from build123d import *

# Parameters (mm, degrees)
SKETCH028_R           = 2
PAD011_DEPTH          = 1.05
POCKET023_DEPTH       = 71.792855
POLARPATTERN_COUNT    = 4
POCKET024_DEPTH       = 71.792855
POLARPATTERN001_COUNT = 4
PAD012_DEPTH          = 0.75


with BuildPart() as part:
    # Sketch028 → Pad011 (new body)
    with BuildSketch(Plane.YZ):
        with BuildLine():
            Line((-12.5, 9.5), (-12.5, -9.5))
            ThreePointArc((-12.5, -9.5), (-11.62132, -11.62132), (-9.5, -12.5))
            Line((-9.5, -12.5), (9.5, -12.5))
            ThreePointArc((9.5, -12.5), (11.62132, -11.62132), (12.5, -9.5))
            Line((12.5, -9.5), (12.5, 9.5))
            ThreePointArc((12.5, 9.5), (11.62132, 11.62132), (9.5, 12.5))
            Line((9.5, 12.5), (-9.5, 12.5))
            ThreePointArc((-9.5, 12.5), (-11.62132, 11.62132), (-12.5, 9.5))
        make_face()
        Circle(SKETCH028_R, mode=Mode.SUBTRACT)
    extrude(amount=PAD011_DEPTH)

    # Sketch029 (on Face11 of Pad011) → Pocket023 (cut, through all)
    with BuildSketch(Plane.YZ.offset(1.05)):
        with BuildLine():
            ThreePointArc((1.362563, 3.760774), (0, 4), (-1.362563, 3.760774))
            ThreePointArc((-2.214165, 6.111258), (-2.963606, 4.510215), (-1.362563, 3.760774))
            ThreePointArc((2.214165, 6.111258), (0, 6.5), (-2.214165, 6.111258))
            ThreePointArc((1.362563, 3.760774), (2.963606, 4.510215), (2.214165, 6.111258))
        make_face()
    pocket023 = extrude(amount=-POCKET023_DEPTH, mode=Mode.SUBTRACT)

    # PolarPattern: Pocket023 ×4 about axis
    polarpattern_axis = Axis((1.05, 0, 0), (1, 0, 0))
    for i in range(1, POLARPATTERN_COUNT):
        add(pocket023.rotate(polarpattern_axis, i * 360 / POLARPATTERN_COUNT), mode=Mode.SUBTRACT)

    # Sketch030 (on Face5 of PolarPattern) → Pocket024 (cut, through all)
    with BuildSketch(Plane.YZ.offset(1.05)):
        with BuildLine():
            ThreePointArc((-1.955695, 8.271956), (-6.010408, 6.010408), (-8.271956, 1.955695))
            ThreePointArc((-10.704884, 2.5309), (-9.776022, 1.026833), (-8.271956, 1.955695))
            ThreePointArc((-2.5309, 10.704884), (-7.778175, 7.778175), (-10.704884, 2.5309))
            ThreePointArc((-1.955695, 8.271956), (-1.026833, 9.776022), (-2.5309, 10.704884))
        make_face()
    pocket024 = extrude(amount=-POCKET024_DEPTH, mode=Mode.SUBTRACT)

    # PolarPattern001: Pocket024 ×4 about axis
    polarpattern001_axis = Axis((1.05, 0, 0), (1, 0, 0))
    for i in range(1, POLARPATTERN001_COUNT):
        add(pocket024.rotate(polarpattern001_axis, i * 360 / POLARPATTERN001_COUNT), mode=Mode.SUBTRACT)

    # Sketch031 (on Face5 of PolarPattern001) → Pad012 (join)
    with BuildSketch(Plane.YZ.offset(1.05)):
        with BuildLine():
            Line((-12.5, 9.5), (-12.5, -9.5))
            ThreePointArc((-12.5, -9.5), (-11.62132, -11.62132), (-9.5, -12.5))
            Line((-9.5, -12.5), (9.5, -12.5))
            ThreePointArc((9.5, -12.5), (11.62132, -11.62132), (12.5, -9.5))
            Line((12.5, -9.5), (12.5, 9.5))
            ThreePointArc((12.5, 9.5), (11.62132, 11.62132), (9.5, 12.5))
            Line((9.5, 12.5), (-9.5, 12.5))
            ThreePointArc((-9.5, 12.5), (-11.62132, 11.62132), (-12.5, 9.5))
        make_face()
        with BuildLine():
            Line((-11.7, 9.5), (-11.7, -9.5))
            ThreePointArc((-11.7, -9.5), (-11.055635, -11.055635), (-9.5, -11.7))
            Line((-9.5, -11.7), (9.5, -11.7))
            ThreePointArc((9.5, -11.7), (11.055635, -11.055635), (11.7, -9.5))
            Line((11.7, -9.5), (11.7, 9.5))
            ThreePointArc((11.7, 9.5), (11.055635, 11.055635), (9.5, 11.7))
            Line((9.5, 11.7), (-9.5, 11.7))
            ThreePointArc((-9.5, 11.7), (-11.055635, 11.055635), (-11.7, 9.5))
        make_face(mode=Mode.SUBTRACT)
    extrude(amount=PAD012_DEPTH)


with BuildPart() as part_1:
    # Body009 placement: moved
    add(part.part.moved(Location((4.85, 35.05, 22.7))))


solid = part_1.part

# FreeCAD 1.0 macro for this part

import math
import FreeCAD as App
import Part
import Sketcher

doc = App.newDocument("Part")
body = doc.addObject("PartDesign::Body", "Body")

# Sketch on YZ plane
sketch1 = body.newObject("Sketcher::SketchObject", "Sketch")
sketch1.AttachmentSupport = (doc.getObject("YZ_Plane"), [""])
sketch1.MapMode = "FlatFace"
sketch1.addGeometry(Part.LineSegment(App.Vector(-12.5, 9.5, 0), App.Vector(-12.5, -9.5, 0)), False)
sketch1.addGeometry(Part.ArcOfCircle(Part.Circle(App.Vector(-9.5, -9.5, 0), App.Vector(0, 0, 1), 3), math.radians(-180), math.radians(-90)), False)
sketch1.addGeometry(Part.LineSegment(App.Vector(-9.5, -12.5, 0), App.Vector(9.5, -12.5, 0)), False)
sketch1.addGeometry(Part.ArcOfCircle(Part.Circle(App.Vector(9.5, -9.5, 0), App.Vector(0, 0, 1), 3), math.radians(-90), math.radians(0)), False)
sketch1.addGeometry(Part.LineSegment(App.Vector(12.5, -9.5, 0), App.Vector(12.5, 9.5, 0)), False)
sketch1.addGeometry(Part.ArcOfCircle(Part.Circle(App.Vector(9.5, 9.5, 0), App.Vector(0, 0, 1), 3), math.radians(0), math.radians(90)), False)
sketch1.addGeometry(Part.LineSegment(App.Vector(9.5, 12.5, 0), App.Vector(-9.5, 12.5, 0)), False)
sketch1.addGeometry(Part.ArcOfCircle(Part.Circle(App.Vector(-9.5, 9.5, 0), App.Vector(0, 0, 1), 3), math.radians(90), math.radians(180)), False)
sketch1.addGeometry(Part.Circle(App.Vector(0, 0, 0), App.Vector(0, 0, 1), 2), False)
sketch1.addConstraint(Sketcher.Constraint("Tangent", 0, 2, 1, 1))
sketch1.addConstraint(Sketcher.Constraint("Tangent", 1, 2, 2, 1))
sketch1.addConstraint(Sketcher.Constraint("Tangent", 2, 2, 3, 1))
sketch1.addConstraint(Sketcher.Constraint("Tangent", 3, 2, 4, 1))
sketch1.addConstraint(Sketcher.Constraint("Tangent", 4, 2, 5, 1))
sketch1.addConstraint(Sketcher.Constraint("Tangent", 5, 2, 6, 1))
sketch1.addConstraint(Sketcher.Constraint("Tangent", 6, 2, 7, 1))
sketch1.addConstraint(Sketcher.Constraint("Tangent", 7, 2, 0, 1))
sketch1.addConstraint(Sketcher.Constraint("Vertical", 0))
sketch1.addConstraint(Sketcher.Constraint("Horizontal", 2))
sketch1.addConstraint(Sketcher.Constraint("Vertical", 4))
sketch1.addConstraint(Sketcher.Constraint("Horizontal", 6))
sketch1.addConstraint(Sketcher.Constraint("Coincident", 8, 3, -1, 1))
sketch1.addConstraint(Sketcher.Constraint("Equal", 1, 3))
sketch1.addConstraint(Sketcher.Constraint("Equal", 3, 5))
sketch1.addConstraint(Sketcher.Constraint("Equal", 5, 7))
sketch1.addConstraint(Sketcher.Constraint("Symmetric", 1, 3, 5, 3, -1, 1))
sketch1.addConstraint(Sketcher.Constraint("Equal", 6, 0))
sketch1.addConstraint(Sketcher.Constraint("Diameter", 8, 4.0))
sketch1.addConstraint(Sketcher.Constraint("Radius", 1, 3.000001))
sketch1.addConstraint(Sketcher.Constraint("DistanceX", 2, 1, 2, 2, 19.0))
pad1 = body.newObject("PartDesign::Pad", "Pad")
pad1.Profile = sketch1
pad1.Length = 1.05

# Sketch on YZ plane
sketch2 = body.newObject("Sketcher::SketchObject", "Sketch001")
sketch2.AttachmentSupport = (doc.getObject("YZ_Plane"), [""])
sketch2.MapMode = "FlatFace"
sketch2.AttachmentOffset = App.Placement(App.Vector(0, 0, 1.05), App.Rotation())
sketch2.addGeometry(Part.ArcOfCircle(Part.Circle(App.Vector(0, 0, 0), App.Vector(0, 0, 1), 4), math.radians(70), math.radians(110)), False)
sketch2.addGeometry(Part.ArcOfCircle(Part.Circle(App.Vector(1.8, 4.9, 0), App.Vector(0, 0, 1), 1.3), math.radians(-110), math.radians(70)), False)
sketch2.addGeometry(Part.ArcOfCircle(Part.Circle(App.Vector(0, 0, 0), App.Vector(0, 0, 1), 6.5), math.radians(70), math.radians(110)), False)
sketch2.addGeometry(Part.ArcOfCircle(Part.Circle(App.Vector(-1.8, 4.9, 0), App.Vector(0, 0, 1), 1.3), math.radians(110), math.radians(290)), False)
sketch2.addConstraint(Sketcher.Constraint("Tangent", 0, 1, 1, 1))
sketch2.addConstraint(Sketcher.Constraint("Tangent", 1, 2, 2, 1))
sketch2.addConstraint(Sketcher.Constraint("Tangent", 2, 2, 3, 1))
sketch2.addConstraint(Sketcher.Constraint("Tangent", 3, 2, 0, 2))
sketch2.addConstraint(Sketcher.Constraint("Coincident", 0, 3, -1, 1))
sketch2.addConstraint(Sketcher.Constraint("Coincident", 2, 3, -1, 1))
sketch2.addConstraint(Sketcher.Constraint("Horizontal", 1, 3, 3, 3))
sketch2.addConstraint(Sketcher.Constraint("Radius", 2, 6.500001))
sketch2.addConstraint(Sketcher.Constraint("Radius", 1, 1.25))
sketch2.addConstraint(Sketcher.Constraint("DistanceX", 0, 1, 1, 3, 0.425801))
pocket1 = body.newObject("PartDesign::Pocket", "Pocket")
pocket1.Profile = sketch2
pocket1.Type = "ThroughAll"
doc.recompute()

polarpattern = body.newObject("PartDesign::PolarPattern", "PolarPattern")
polarpattern.Originals = [pocket1]
polarpattern.Axis = (doc.getObject("X_Axis"), [""])
polarpattern.Angle = 360
polarpattern.Occurrences = 4
body.Tip = polarpattern

# Sketch on YZ plane
sketch3 = body.newObject("Sketcher::SketchObject", "Sketch002")
sketch3.AttachmentSupport = (doc.getObject("YZ_Plane"), [""])
sketch3.MapMode = "FlatFace"
sketch3.AttachmentOffset = App.Placement(App.Vector(0, 0, 1.05), App.Rotation())
sketch3.addGeometry(Part.ArcOfCircle(Part.Circle(App.Vector(0, 0, 0), App.Vector(0, 0, 1), 8.5), math.radians(103), math.radians(167)), False)
sketch3.addGeometry(Part.ArcOfCircle(Part.Circle(App.Vector(-2.2, 9.5, 0), App.Vector(0, 0, 1), 1.2), math.radians(-77), math.radians(103)), False)
sketch3.addGeometry(Part.ArcOfCircle(Part.Circle(App.Vector(0, 0, 0), App.Vector(0, 0, 1), 11), math.radians(103), math.radians(167)), False)
sketch3.addGeometry(Part.ArcOfCircle(Part.Circle(App.Vector(-9.5, 2.2, 0), App.Vector(0, 0, 1), 1.2), math.radians(167), math.radians(347)), False)
sketch3.addConstraint(Sketcher.Constraint("Tangent", 0, 1, 1, 1))
sketch3.addConstraint(Sketcher.Constraint("Tangent", 1, 2, 2, 1))
sketch3.addConstraint(Sketcher.Constraint("Tangent", 2, 2, 3, 1))
sketch3.addConstraint(Sketcher.Constraint("Tangent", 3, 2, 0, 2))
sketch3.addConstraint(Sketcher.Constraint("Coincident", 0, 3, -1, 1))
sketch3.addConstraint(Sketcher.Constraint("Coincident", 2, 3, -1, 1))
sketch3.addConstraint(Sketcher.Constraint("Radius", 1, 1.25))
sketch3.addConstraint(Sketcher.Constraint("Radius", 0, 8.499997))
sketch3.addConstraint(Sketcher.Constraint("DistanceX", 1, 2, -1, 1, 2.5309))
sketch3.addConstraint(Sketcher.Constraint("DistanceY", -1, 1, 2, 2, 2.5309))
pocket2 = body.newObject("PartDesign::Pocket", "Pocket001")
pocket2.Profile = sketch3
pocket2.Type = "ThroughAll"
doc.recompute()

polarpattern2 = body.newObject("PartDesign::PolarPattern", "PolarPattern001")
polarpattern2.Originals = [pocket2]
polarpattern2.Axis = (doc.getObject("X_Axis"), [""])
polarpattern2.Angle = 360
polarpattern2.Occurrences = 4
body.Tip = polarpattern2

# Sketch on YZ plane
sketch4 = body.newObject("Sketcher::SketchObject", "Sketch003")
sketch4.AttachmentSupport = (doc.getObject("YZ_Plane"), [""])
sketch4.MapMode = "FlatFace"
sketch4.AttachmentOffset = App.Placement(App.Vector(0, 0, 1.05), App.Rotation())
sketch4.addGeometry(Part.LineSegment(App.Vector(-12.5, 9.5, 0), App.Vector(-12.5, -9.5, 0)), False)
sketch4.addGeometry(Part.ArcOfCircle(Part.Circle(App.Vector(-9.5, -9.5, 0), App.Vector(0, 0, 1), 3), math.radians(-180), math.radians(-90)), False)
sketch4.addGeometry(Part.LineSegment(App.Vector(-9.5, -12.5, 0), App.Vector(9.5, -12.5, 0)), False)
sketch4.addGeometry(Part.ArcOfCircle(Part.Circle(App.Vector(9.5, -9.5, 0), App.Vector(0, 0, 1), 3), math.radians(-90), math.radians(0)), False)
sketch4.addGeometry(Part.LineSegment(App.Vector(12.5, -9.5, 0), App.Vector(12.5, 9.5, 0)), False)
sketch4.addGeometry(Part.ArcOfCircle(Part.Circle(App.Vector(9.5, 9.5, 0), App.Vector(0, 0, 1), 3), math.radians(0), math.radians(90)), False)
sketch4.addGeometry(Part.LineSegment(App.Vector(9.5, 12.5, 0), App.Vector(-9.5, 12.5, 0)), False)
sketch4.addGeometry(Part.ArcOfCircle(Part.Circle(App.Vector(-9.5, 9.5, 0), App.Vector(0, 0, 1), 3), math.radians(90), math.radians(180)), False)
sketch4.addGeometry(Part.LineSegment(App.Vector(-11.7, -9.5, 0), App.Vector(-11.7, 9.5, 0)), False)
sketch4.addGeometry(Part.ArcOfCircle(Part.Circle(App.Vector(-9.5, 9.5, 0), App.Vector(0, 0, 1), 2.2), math.radians(90), math.radians(180)), False)
sketch4.addGeometry(Part.LineSegment(App.Vector(-9.5, 11.7, 0), App.Vector(9.5, 11.7, 0)), False)
sketch4.addGeometry(Part.ArcOfCircle(Part.Circle(App.Vector(9.5, 9.5, 0), App.Vector(0, 0, 1), 2.2), math.radians(0), math.radians(90)), False)
sketch4.addGeometry(Part.LineSegment(App.Vector(11.7, 9.5, 0), App.Vector(11.7, -9.5, 0)), False)
sketch4.addGeometry(Part.ArcOfCircle(Part.Circle(App.Vector(9.5, -9.5, 0), App.Vector(0, 0, 1), 2.2), math.radians(-90), math.radians(0)), False)
sketch4.addGeometry(Part.LineSegment(App.Vector(9.5, -11.7, 0), App.Vector(-9.5, -11.7, 0)), False)
sketch4.addGeometry(Part.ArcOfCircle(Part.Circle(App.Vector(-9.5, -9.5, 0), App.Vector(0, 0, 1), 2.2), math.radians(180), math.radians(270)), False)
sketch4.addConstraint(Sketcher.Constraint("Tangent", 0, 2, 1, 1))
sketch4.addConstraint(Sketcher.Constraint("Tangent", 1, 2, 2, 1))
sketch4.addConstraint(Sketcher.Constraint("Tangent", 2, 2, 3, 1))
sketch4.addConstraint(Sketcher.Constraint("Tangent", 3, 2, 4, 1))
sketch4.addConstraint(Sketcher.Constraint("Tangent", 4, 2, 5, 1))
sketch4.addConstraint(Sketcher.Constraint("Tangent", 5, 2, 6, 1))
sketch4.addConstraint(Sketcher.Constraint("Tangent", 6, 2, 7, 1))
sketch4.addConstraint(Sketcher.Constraint("Tangent", 7, 2, 0, 1))
sketch4.addConstraint(Sketcher.Constraint("Tangent", 8, 2, 9, 2))
sketch4.addConstraint(Sketcher.Constraint("Tangent", 9, 1, 10, 1))
sketch4.addConstraint(Sketcher.Constraint("Tangent", 10, 2, 11, 2))
sketch4.addConstraint(Sketcher.Constraint("Tangent", 11, 1, 12, 1))
sketch4.addConstraint(Sketcher.Constraint("Tangent", 12, 2, 13, 2))
sketch4.addConstraint(Sketcher.Constraint("Tangent", 13, 1, 14, 1))
sketch4.addConstraint(Sketcher.Constraint("Tangent", 14, 2, 15, 2))
sketch4.addConstraint(Sketcher.Constraint("Tangent", 15, 1, 8, 1))
sketch4.addConstraint(Sketcher.Constraint("Vertical", 0))
sketch4.addConstraint(Sketcher.Constraint("Horizontal", 2))
sketch4.addConstraint(Sketcher.Constraint("Vertical", 4))
sketch4.addConstraint(Sketcher.Constraint("Horizontal", 6))
sketch4.addConstraint(Sketcher.Constraint("Vertical", 8))
sketch4.addConstraint(Sketcher.Constraint("Horizontal", 10))
sketch4.addConstraint(Sketcher.Constraint("Vertical", 12))
sketch4.addConstraint(Sketcher.Constraint("Horizontal", 14))
sketch4.addConstraint(Sketcher.Constraint("Coincident", 9, 3, 7, 3))
sketch4.addConstraint(Sketcher.Constraint("Coincident", 11, 3, 5, 3))
sketch4.addConstraint(Sketcher.Constraint("Coincident", 13, 3, 3, 3))
sketch4.addConstraint(Sketcher.Constraint("Equal", 1, 3))
sketch4.addConstraint(Sketcher.Constraint("Equal", 3, 5))
sketch4.addConstraint(Sketcher.Constraint("Equal", 5, 7))
sketch4.addConstraint(Sketcher.Constraint("Equal", 13, 15))
sketch4.addConstraint(Sketcher.Constraint("Symmetric", 1, 3, 5, 3, -1, 1))
sketch4.addConstraint(Sketcher.Constraint("Equal", 14, 0))
sketch4.addConstraint(Sketcher.Constraint("Radius", 1, 3.000001))
sketch4.addConstraint(Sketcher.Constraint("Radius", 9, 2.2))
sketch4.addConstraint(Sketcher.Constraint("DistanceX", 2, 1, 2, 2, 19.0))
pad2 = body.newObject("PartDesign::Pad", "Pad001")
pad2.Profile = sketch4
pad2.Length = 0.75
body2 = doc.addObject("PartDesign::Body", "Body001")
doc.recompute()

body.Placement = App.Placement(App.Vector(4.85, 35.05, 22.7), App.Rotation(App.Vector(0, 0, 1), 0))
boolean = body2.newObject("PartDesign::Boolean", "Boolean")
boolean.Type = "Fuse"
boolean.addObjects([body])

doc.recompute()
